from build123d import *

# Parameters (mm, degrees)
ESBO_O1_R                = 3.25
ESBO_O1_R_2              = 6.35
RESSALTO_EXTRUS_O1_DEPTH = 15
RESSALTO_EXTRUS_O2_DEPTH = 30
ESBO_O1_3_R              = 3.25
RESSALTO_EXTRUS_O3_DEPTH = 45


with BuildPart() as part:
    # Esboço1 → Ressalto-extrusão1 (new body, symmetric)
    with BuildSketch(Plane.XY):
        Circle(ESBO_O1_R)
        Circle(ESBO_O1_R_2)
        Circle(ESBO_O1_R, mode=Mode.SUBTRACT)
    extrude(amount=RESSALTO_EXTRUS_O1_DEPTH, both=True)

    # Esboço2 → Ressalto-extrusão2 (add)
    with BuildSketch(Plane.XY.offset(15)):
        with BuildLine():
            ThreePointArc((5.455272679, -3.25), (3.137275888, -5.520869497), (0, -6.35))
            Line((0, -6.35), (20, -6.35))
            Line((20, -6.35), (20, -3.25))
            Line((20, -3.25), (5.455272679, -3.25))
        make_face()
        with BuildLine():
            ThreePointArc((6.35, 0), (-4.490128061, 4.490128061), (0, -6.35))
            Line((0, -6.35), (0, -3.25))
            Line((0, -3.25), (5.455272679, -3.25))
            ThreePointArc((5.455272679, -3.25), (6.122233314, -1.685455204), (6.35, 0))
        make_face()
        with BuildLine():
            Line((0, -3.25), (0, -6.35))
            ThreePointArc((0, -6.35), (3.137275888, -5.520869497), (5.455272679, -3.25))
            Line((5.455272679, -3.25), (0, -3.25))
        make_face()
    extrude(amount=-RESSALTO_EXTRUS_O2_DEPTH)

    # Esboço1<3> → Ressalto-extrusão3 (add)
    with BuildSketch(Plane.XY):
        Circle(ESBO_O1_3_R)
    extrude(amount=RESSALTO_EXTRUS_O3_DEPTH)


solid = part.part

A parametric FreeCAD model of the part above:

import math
import FreeCAD as App
import Part
import Sketcher

V = App.Vector

doc = App.newDocument("Part")
body = doc.addObject("PartDesign::Body", "Body")

# Sketch on XY plane
sketch1 = doc.addObject("Sketcher::SketchObject", "Sketch")
body.addObject(sketch1)
sketch1.AttachmentSupport = (doc.XY_Plane, [""])
sketch1.MapMode = "FlatFace"
sketch1.addGeometry([
    Part.Circle(V(0, 0, 0), V(0, 0, 1), 6.3),
    Part.Circle(V(0, 0, 0), V(0, 0, 1), 3.2),
], False)
sketch1.addConstraint([
    Sketcher.Constraint("Coincident", 0, 3, -1, 1),
    Sketcher.Constraint("Coincident", 1, 3, -1, 1),
    Sketcher.Constraint("Diameter", 0, 12.7),
    Sketcher.Constraint("Diameter", 1, 6.5),
])
pad1 = doc.addObject("PartDesign::Pad", "Pad")
body.addObject(pad1)
pad1.Profile = sketch1
pad1.Length = 30
pad1.Midplane = True

# Sketch on XY plane
sketch2 = doc.addObject("Sketcher::SketchObject", "Sketch001")
body.addObject(sketch2)
sketch2.AttachmentSupport = (doc.XY_Plane, [""])
sketch2.MapMode = "FlatFace"
sketch2.AttachmentOffset = App.Placement(V(0, 0, 15), App.Rotation())
sketch2.addGeometry([
    Part.LineSegment(V(0, -6.3, 0), V(20, -6.3, 0)),  # 0
    Part.LineSegment(V(20, -6.3, 0), V(20, -3.2, 0)),  # 1
    Part.LineSegment(V(20, -3.2, 0), V(5.5, -3.2, 0)),  # 2
    Part.ArcOfCircle(Part.Circle(V(0, 0, 0), V(0, 0, 1), 6.4), math.radians(-31), math.radians(0)),  # 3
    Part.ArcOfCircle(Part.Circle(V(0, 0, 0), V(0, 0, 1), 6.3), math.radians(0), math.radians(270)),  # 4
], False)
sketch2.addConstraint([
    Sketcher.Constraint("Coincident", 0, 2, 1, 1),
    Sketcher.Constraint("Coincident", 1, 2, 2, 1),
    Sketcher.Constraint("Coincident", 2, 2, 3, 1),
    Sketcher.Constraint("Tangent", 3, 2, 4, 1),
    Sketcher.Constraint("Tangent", 4, 2, 0, 1),
    Sketcher.Constraint("Horizontal", 0),
    Sketcher.Constraint("Vertical", 1),
    Sketcher.Constraint("Horizontal", 2),
    Sketcher.Constraint("Coincident", 3, 3, -1, 1),
    Sketcher.Constraint("Equal", 3, 4),
    Sketcher.Constraint("PointOnObject", 3, 2, -1),
    Sketcher.Constraint("DistanceX", 0, 1, 0, 2, 20.0),
    Sketcher.Constraint("Radius", 3, 6.35),
    Sketcher.Constraint("DistanceY", 1, 1, 1, 2, 3.1),
])
pad2 = doc.addObject("PartDesign::Pad", "Pad001")
body.addObject(pad2)
pad2.Profile = sketch2
pad2.Length = 30
pad2.Reversed = True

# Sketch on XY plane
sketch3 = doc.addObject("Sketcher::SketchObject", "Sketch002")
body.addObject(sketch3)
sketch3.AttachmentSupport = (doc.XY_Plane, [""])
sketch3.MapMode = "FlatFace"
sketch3.addGeometry(Part.Circle(V(0, 0, 0), V(0, 0, 1), 3.2), False)
sketch3.addConstraint([
    Sketcher.Constraint("Coincident", 0, 3, -1, 1),
    Sketcher.Constraint("Diameter", 0, 6.5),
])
pad3 = doc.addObject("PartDesign::Pad", "Pad002")
body.addObject(pad3)
pad3.Profile = sketch3
pad3.Length = 45

doc.recompute()
